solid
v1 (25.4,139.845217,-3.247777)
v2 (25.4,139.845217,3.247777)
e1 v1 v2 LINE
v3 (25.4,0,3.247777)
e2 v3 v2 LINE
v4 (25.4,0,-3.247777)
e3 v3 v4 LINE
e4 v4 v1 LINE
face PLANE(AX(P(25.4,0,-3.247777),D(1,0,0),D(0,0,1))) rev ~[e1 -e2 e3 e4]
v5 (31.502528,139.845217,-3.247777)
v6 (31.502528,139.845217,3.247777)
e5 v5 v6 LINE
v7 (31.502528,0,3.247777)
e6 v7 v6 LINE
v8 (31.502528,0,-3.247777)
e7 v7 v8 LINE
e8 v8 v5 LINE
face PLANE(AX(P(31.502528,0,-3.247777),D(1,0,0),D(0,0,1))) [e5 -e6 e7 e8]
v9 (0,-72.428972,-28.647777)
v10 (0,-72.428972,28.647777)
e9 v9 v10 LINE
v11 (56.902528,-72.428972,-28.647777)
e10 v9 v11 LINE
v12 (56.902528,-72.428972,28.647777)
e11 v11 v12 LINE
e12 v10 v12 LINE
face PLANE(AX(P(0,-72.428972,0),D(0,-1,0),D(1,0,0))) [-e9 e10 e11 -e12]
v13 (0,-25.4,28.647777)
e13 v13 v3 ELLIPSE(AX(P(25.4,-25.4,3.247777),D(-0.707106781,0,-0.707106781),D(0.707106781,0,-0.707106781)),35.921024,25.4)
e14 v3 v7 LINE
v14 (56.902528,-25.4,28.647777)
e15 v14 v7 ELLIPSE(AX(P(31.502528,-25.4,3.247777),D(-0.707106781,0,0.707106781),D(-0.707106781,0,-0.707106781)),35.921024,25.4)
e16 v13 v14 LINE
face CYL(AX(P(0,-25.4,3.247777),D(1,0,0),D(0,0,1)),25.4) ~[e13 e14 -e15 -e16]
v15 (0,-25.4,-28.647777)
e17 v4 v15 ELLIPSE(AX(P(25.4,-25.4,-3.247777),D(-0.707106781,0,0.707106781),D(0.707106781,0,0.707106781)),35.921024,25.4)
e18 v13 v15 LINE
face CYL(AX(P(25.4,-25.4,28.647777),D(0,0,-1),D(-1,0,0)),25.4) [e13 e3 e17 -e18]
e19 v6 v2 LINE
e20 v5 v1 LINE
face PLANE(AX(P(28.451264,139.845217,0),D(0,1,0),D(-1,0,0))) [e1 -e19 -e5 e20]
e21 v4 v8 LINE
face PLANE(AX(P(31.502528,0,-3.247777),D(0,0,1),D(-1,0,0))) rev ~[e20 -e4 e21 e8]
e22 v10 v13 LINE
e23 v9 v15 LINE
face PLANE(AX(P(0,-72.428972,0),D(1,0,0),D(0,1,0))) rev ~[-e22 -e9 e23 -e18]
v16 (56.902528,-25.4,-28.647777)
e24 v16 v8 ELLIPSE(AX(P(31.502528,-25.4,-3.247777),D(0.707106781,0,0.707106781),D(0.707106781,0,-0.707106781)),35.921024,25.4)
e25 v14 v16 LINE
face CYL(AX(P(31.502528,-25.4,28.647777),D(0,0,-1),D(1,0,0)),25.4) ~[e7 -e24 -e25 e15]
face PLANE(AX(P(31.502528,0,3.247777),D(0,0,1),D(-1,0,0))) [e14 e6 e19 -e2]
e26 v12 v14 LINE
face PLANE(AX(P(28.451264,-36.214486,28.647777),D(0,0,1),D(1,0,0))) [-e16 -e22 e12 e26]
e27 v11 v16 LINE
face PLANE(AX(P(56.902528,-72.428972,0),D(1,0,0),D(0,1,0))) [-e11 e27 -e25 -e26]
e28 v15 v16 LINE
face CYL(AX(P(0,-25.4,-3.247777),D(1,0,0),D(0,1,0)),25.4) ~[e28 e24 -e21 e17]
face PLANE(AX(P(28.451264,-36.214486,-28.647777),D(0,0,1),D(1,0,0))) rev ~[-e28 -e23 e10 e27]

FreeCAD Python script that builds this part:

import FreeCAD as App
import Part
import Sketcher

V = App.Vector
Q = App.Units.Quantity


def edges_at(feature, points):
    """Names of the edges that pass closest to the given points."""
    edges = feature.Shape.Edges
    near = lambda p: min(range(len(edges)), key=lambda i: edges[i].distToShape(Part.Vertex(*p))[0])
    return sorted({f"Edge{near(p) + 1}" for p in points})

doc = App.newDocument("Part")
body = doc.addObject("PartDesign::Body", "Body")

sketch1 = body.newObject("Sketcher::SketchObject", "Sketch")
sketch1.AttachmentSupport = (doc.getObject("XY_Plane"), [""])
sketch1.MapMode = "FlatFace"
sketch1.addGeometry([
    Part.LineSegment(V(0, 0, 0), V(0, -72.428972, 0)),
    Part.LineSegment(V(0, -72.428972, 0), V(56.902528, -72.428972, 0)),
    Part.LineSegment(V(56.902528, -72.428972, 0), V(56.902528, 0, 0)),
    Part.LineSegment(V(56.902528, 0, 0), V(0, 0, 0)),
], False)
sketch1.addConstraint([
    Sketcher.Constraint("Coincident", 0, 2, 1, 1),
    Sketcher.Constraint("Coincident", 1, 2, 2, 1),
    Sketcher.Constraint("Coincident", 2, 2, 3, 1),
    Sketcher.Constraint("Coincident", 3, 2, 0, 1),
    Sketcher.Constraint("Vertical", 0),
    Sketcher.Constraint("Horizontal", 1),
    Sketcher.Constraint("Vertical", 2),
    Sketcher.Constraint("Horizontal", 3),
    Sketcher.Constraint("Coincident", 3, 2, -1, 1),
    Sketcher.Constraint("DistanceY", 0, 2, 0, 1, Q("72.428972 mm")),
    Sketcher.Constraint("DistanceX", 1, 1, 1, 2, Q("56.902528 mm")),
])
pad1 = body.newObject("PartDesign::Pad", "Pad")
pad1.Profile = sketch1
pad1.Length = 57.295554
pad1.Midplane = True
doc.recompute()

fillet = body.newObject("PartDesign::Fillet", "Fillet")
fillet.Base = (pad1, edges_at(pad1, [
    (56.903, 0, 0),
    (28.451, 0, -28.648),
    (0, 0, 0),
    (28.451, 0, 28.648),
]))
fillet.Radius = Q("1 in")

sketch2 = body.newObject("Sketcher::SketchObject", "Sketch001")
sketch2.AttachmentSupport = (doc.getObject("XZ_Plane"), [""])
sketch2.MapMode = "FlatFace"
sketch2.addGeometry([
    Part.LineSegment(V(31.502528, 3.247777, 0), V(31.502528, -3.247777, 0)),
    Part.LineSegment(V(31.502528, -3.247777, 0), V(25.4, -3.247777, 0)),
    Part.LineSegment(V(25.4, -3.247777, 0), V(25.4, 3.247777, 0)),
    Part.LineSegment(V(25.4, 3.247777, 0), V(31.502528, 3.247777, 0)),
], False)
sketch2.addConstraint([
    Sketcher.Constraint("Coincident", 0, 2, 1, 1),
    Sketcher.Constraint("Coincident", 1, 2, 2, 1),
    Sketcher.Constraint("Coincident", 2, 2, 3, 1),
    Sketcher.Constraint("Coincident", 3, 2, 0, 1),
    Sketcher.Constraint("Vertical", 0),
    Sketcher.Constraint("Horizontal", 1),
    Sketcher.Constraint("Vertical", 2),
    Sketcher.Constraint("Horizontal", 3),
    Sketcher.Constraint("DistanceX", -1, 1, 1, 2, Q("1 in")),
    Sketcher.Constraint("DistanceX", 1, 2, 1, 1, Q("6.102528 mm")),
    Sketcher.Constraint("DistanceY", 0, 2, 0, 1, Q("6.495554 mm")),
    Sketcher.Constraint("DistanceY", 0, 2, -1, 1, Q("3.247777 mm")),
])
pad2 = body.newObject("PartDesign::Pad", "Pad001")
pad2.Profile = sketch2
pad2.Length = 139.845217
pad2.Reversed = True

doc.recompute()
